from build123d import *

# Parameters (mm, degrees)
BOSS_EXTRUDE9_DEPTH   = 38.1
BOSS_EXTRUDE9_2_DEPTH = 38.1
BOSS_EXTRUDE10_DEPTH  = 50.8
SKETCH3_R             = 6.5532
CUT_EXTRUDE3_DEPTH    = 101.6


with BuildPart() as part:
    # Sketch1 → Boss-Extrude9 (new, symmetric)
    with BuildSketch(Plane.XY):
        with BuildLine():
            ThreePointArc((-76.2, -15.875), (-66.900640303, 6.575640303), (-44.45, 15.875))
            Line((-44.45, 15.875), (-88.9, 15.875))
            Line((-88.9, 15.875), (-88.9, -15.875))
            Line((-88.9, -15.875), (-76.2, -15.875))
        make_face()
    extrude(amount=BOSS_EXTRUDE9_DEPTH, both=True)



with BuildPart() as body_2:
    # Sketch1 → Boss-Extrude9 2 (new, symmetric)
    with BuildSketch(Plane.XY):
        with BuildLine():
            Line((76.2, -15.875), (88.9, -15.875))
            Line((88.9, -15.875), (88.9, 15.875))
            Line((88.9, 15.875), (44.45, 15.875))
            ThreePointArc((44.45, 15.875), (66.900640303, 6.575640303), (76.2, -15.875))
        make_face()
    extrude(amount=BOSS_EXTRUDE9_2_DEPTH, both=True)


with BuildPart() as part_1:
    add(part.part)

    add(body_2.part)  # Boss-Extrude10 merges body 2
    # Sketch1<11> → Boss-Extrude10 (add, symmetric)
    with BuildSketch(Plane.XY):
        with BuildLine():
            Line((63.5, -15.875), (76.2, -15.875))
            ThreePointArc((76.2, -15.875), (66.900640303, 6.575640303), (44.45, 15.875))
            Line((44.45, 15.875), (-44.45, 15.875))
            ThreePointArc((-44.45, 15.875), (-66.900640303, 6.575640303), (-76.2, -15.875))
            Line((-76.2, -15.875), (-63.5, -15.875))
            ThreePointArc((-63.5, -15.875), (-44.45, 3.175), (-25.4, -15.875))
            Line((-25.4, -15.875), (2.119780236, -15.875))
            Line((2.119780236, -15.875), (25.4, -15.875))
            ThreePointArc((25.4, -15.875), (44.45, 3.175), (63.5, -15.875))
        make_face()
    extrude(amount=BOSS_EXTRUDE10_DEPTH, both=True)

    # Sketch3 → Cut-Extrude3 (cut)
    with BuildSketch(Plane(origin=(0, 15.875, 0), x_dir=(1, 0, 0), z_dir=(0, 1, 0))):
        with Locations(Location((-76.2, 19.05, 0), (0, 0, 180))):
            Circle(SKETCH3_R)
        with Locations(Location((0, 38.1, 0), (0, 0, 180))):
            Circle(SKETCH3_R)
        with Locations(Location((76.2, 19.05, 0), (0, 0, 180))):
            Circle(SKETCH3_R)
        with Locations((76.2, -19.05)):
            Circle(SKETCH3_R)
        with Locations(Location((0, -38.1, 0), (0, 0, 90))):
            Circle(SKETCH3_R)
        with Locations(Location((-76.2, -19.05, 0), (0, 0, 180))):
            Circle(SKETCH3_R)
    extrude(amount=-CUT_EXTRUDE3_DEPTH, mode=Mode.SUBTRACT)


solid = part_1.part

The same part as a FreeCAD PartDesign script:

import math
import FreeCAD as App
import Part
import Sketcher
from FreeCAD import Vector
Q = App.Units.Quantity

doc = App.newDocument("Part")
params = doc.addObject("Spreadsheet::Sheet", "Params")
for row, (alias, value) in enumerate([
    ("sketch1_radius", "1.25 in"),
    ("sketch1_width", "0.5 in"),
    ("pad1_length", "3 in"),
    ("sketch2_radius", "1.25 in"),
    ("sketch2_width", "0.5 in"),
    ("pad2_length", "3 in"),
    ("sketch3_width", "2 in"),
    ("sketch3_radius", "1.25 in"),
    ("sketch3_radius2", "0.75 in"),
    ("pad3_length", "4 in"),
    ("sketch4_diameter", "0.516 in"),
    ("pocket1_length", "4 in"),
], start=1):
    params.set(f"A{row}", alias)
    params.set(f"B{row}", "=" + value)
    params.setAlias(f"B{row}", alias)

body = doc.addObject("PartDesign::Body", "Body")

# Sketch on XY plane
sketch1 = doc.addObject("Sketcher::SketchObject", "Sketch")
body.addObject(sketch1)
sketch1.AttachmentSupport = (doc.XY_Plane, [""])
sketch1.MapMode = "FlatFace"
sketch1.addGeometry([
    Part.ArcOfCircle(Part.Circle(Vector(-44.45, -15.875, 0), Vector(0, 0, 1), 31.75), math.radians(90), math.radians(180)),
    Part.LineSegment(Vector(-44.45, 15.875, 0), Vector(-88.9, 15.875, 0)),
    Part.LineSegment(Vector(-88.9, 15.875, 0), Vector(-88.9, -15.875, 0)),
    Part.LineSegment(Vector(-88.9, -15.875, 0), Vector(-76.2, -15.875, 0)),
], False)
sketch1.addConstraint([
    Sketcher.Constraint("Tangent", 0, 1, 1, 1),
    Sketcher.Constraint("Coincident", 1, 2, 2, 1),
    Sketcher.Constraint("Coincident", 2, 2, 3, 1),
    Sketcher.Constraint("Coincident", 3, 2, 0, 2),
    Sketcher.Constraint("Horizontal", 1),
    Sketcher.Constraint("Vertical", 2),
    Sketcher.Constraint("Horizontal", 3),
    Sketcher.Constraint("Horizontal", 0, 3, 2, 2),
    Sketcher.Constraint("Radius", 0, Q("1.25 in")),
    Sketcher.Constraint("DistanceX", 3, 1, 3, 2, Q("0.5 in")),
    Sketcher.Constraint("DistanceX", 3, 2, -1, 1, Q("3 in")),
    Sketcher.Constraint("DistanceY", 0, 3, -1, 1, Q("0.625 in")),
])
sketch1.setExpression("Constraints[8]", "Params.sketch1_radius")
sketch1.setExpression("Constraints[9]", "Params.sketch1_width")
pad1 = doc.addObject("PartDesign::Pad", "Pad")
body.addObject(pad1)
pad1.Profile = sketch1
pad1.setExpression("Length", "Params.pad1_length")
pad1.Midplane = True
body2 = doc.addObject("PartDesign::Body", "Body001")

# Sketch on XY plane
sketch2 = doc.addObject("Sketcher::SketchObject", "Sketch001")
body2.addObject(sketch2)
sketch2.AttachmentSupport = (doc.getObject("XY_Plane001"), [""])
sketch2.MapMode = "FlatFace"
sketch2.addGeometry([
    Part.LineSegment(Vector(76.2, -15.875, 0), Vector(88.9, -15.875, 0)),
    Part.LineSegment(Vector(88.9, -15.875, 0), Vector(88.9, 15.875, 0)),
    Part.LineSegment(Vector(88.9, 15.875, 0), Vector(44.45, 15.875, 0)),
    Part.ArcOfCircle(Part.Circle(Vector(44.45, -15.875, 0), Vector(0, 0, 1), 31.75), math.radians(0), math.radians(90)),
], False)
sketch2.addConstraint([
    Sketcher.Constraint("Coincident", 0, 2, 1, 1),
    Sketcher.Constraint("Coincident", 1, 2, 2, 1),
    Sketcher.Constraint("Tangent", 2, 2, 3, 2),
    Sketcher.Constraint("Coincident", 3, 1, 0, 1),
    Sketcher.Constraint("Horizontal", 0),
    Sketcher.Constraint("Vertical", 1),
    Sketcher.Constraint("Horizontal", 2),
    Sketcher.Constraint("Horizontal", 3, 3, 0, 2),
    Sketcher.Constraint("Radius", 3, Q("1.25 in")),
    Sketcher.Constraint("DistanceX", 0, 1, 0, 2, Q("0.5 in")),
    Sketcher.Constraint("DistanceX", -1, 1, 3, 1, Q("3 in")),
    Sketcher.Constraint("DistanceY", 3, 3, -1, 1, Q("0.625 in")),
])
sketch2.setExpression("Constraints[8]", "Params.sketch2_radius")
sketch2.setExpression("Constraints[9]", "Params.sketch2_width")
pad2 = doc.addObject("PartDesign::Pad", "Pad001")
body2.addObject(pad2)
pad2.Profile = sketch2
pad2.setExpression("Length", "Params.pad2_length")
pad2.Midplane = True
body.AllowCompound = True
doc.recompute()

boolean = doc.addObject("PartDesign::Boolean", "Boolean")
body.addObject(boolean)
boolean.Type = "Fuse"
boolean.addObjects([body2])

# Sketch on XY plane
sketch3 = doc.addObject("Sketcher::SketchObject", "Sketch002")
body.addObject(sketch3)
sketch3.AttachmentSupport = (doc.XY_Plane, [""])
sketch3.MapMode = "FlatFace"
sketch3.addGeometry([
    Part.LineSegment(Vector(63.5, -15.875, 0), Vector(76.2, -15.875, 0)),  # 0
    Part.ArcOfCircle(Part.Circle(Vector(44.45, -15.875, 0), Vector(0, 0, 1), 31.75), math.radians(0), math.radians(90)),  # 1
    Part.LineSegment(Vector(44.45, 15.875, 0), Vector(-44.45, 15.875, 0)),  # 2
    Part.ArcOfCircle(Part.Circle(Vector(-44.45, -15.875, 0), Vector(0, 0, 1), 31.75), math.radians(90), math.radians(180)),  # 3
    Part.LineSegment(Vector(-76.2, -15.875, 0), Vector(-63.5, -15.875, 0)),  # 4
    Part.ArcOfCircle(Part.Circle(Vector(-44.45, -15.875, 0), Vector(0, 0, 1), 19.05), math.radians(0), math.radians(180)),  # 5
    Part.LineSegment(Vector(-25.4, -15.875, 0), Vector(25.4, -15.875, 0)),  # 6
    Part.ArcOfCircle(Part.Circle(Vector(44.45, -15.875, 0), Vector(0, 0, 1), 19.05), math.radians(0), math.radians(180)),  # 7
], False)
sketch3.addConstraint([
    Sketcher.Constraint("Coincident", 0, 2, 1, 1),
    Sketcher.Constraint("Tangent", 1, 2, 2, 1),
    Sketcher.Constraint("Tangent", 2, 2, 3, 1),
    Sketcher.Constraint("Coincident", 3, 2, 4, 1),
    Sketcher.Constraint("Coincident", 4, 2, 5, 2),
    Sketcher.Constraint("Coincident", 5, 1, 6, 1),
    Sketcher.Constraint("Coincident", 6, 2, 7, 2),
    Sketcher.Constraint("Coincident", 7, 1, 0, 1),
    Sketcher.Constraint("Horizontal", 0),
    Sketcher.Constraint("Horizontal", 2),
    Sketcher.Constraint("Horizontal", 4),
    Sketcher.Constraint("Horizontal", 6),
    Sketcher.Constraint("Coincident", 5, 3, 3, 3),
    Sketcher.Constraint("Coincident", 7, 3, 1, 3),
    Sketcher.Constraint("Equal", 1, 3),
    Sketcher.Constraint("Equal", 5, 7),
    Sketcher.Constraint("Symmetric", 0, 2, 3, 2, -2),
    Sketcher.Constraint("Horizontal", 7, 3, 0, 2),
    Sketcher.Constraint("Horizontal", 4, 2, 5, 1),
    Sketcher.Constraint("DistanceX", 6, 1, 6, 2, Q("2 in")),
    Sketcher.Constraint("Radius", 1, Q("1.25 in")),
    Sketcher.Constraint("Radius", 5, Q("0.75 in")),
    Sketcher.Constraint("DistanceY", 1, 3, -1, 1, Q("0.625 in")),
])
sketch3.setExpression("Constraints[19]", "Params.sketch3_width")
sketch3.setExpression("Constraints[20]", "Params.sketch3_radius")
sketch3.setExpression("Constraints[21]", "Params.sketch3_radius2")
pad3 = doc.addObject("PartDesign::Pad", "Pad002")
body.addObject(pad3)
pad3.Profile = sketch3
pad3.setExpression("Length", "Params.pad3_length")
pad3.Midplane = True

# Sketch on XZ plane
sketch4 = doc.addObject("Sketcher::SketchObject", "Sketch003")
body.addObject(sketch4)
sketch4.AttachmentSupport = (doc.XZ_Plane, [""])
sketch4.MapMode = "FlatFace"
sketch4.AttachmentOffset = App.Placement(Vector(0, 0, -0.625 * 25.4), App.Rotation())
sketch4.addGeometry([
    Part.Circle(Vector(-76.2, -19.05, 0), Vector(0, 0, 1), 6.5532),  # 0
    Part.Circle(Vector(0, -38.1, 0), Vector(0, 0, 1), 6.5532),  # 1
    Part.Circle(Vector(76.2, -19.05, 0), Vector(0, 0, 1), 6.5532),  # 2
    Part.Circle(Vector(76.2, 19.05, 0), Vector(0, 0, 1), 6.5532),  # 3
    Part.Circle(Vector(0, 38.1, 0), Vector(0, 0, 1), 6.5532),  # 4
    Part.Circle(Vector(-76.2, 19.05, 0), Vector(0, 0, 1), 6.5532),  # 5
], False)
sketch4.addConstraint([
    Sketcher.Constraint("Equal", 0, 1),
    Sketcher.Constraint("Equal", 1, 2),
    Sketcher.Constraint("Equal", 2, 3),
    Sketcher.Constraint("Equal", 3, 4),
    Sketcher.Constraint("Equal", 4, 5),
    Sketcher.Constraint("Symmetric", 0, 3, 3, 3, -1, 1),
    Sketcher.Constraint("Symmetric", 1, 3, 4, 3, -1, 1),
    Sketcher.Constraint("Symmetric", 2, 3, 5, 3, -1, 1),
    Sketcher.Constraint("Symmetric", 0, 3, 2, 3, -2),
    Sketcher.Constraint("PointOnObject", 1, 3, -2),
    Sketcher.Constraint("Diameter", 0, Q("0.516 in")),
    Sketcher.Constraint("DistanceX", 0, 3, -1, 1, Q("3 in")),
    Sketcher.Constraint("DistanceY", 1, 3, 4, 3, Q("3 in")),
    Sketcher.Constraint("DistanceY", 2, 3, 3, 3, Q("1.5 in")),
])
sketch4.setExpression("Constraints[10]", "Params.sketch4_diameter")
pocket1 = doc.addObject("PartDesign::Pocket", "Pocket")
body.addObject(pocket1)
pocket1.Profile = sketch4
pocket1.setExpression("Length", "Params.pocket1_length")
pocket1.Reversed = True

doc.recompute()
